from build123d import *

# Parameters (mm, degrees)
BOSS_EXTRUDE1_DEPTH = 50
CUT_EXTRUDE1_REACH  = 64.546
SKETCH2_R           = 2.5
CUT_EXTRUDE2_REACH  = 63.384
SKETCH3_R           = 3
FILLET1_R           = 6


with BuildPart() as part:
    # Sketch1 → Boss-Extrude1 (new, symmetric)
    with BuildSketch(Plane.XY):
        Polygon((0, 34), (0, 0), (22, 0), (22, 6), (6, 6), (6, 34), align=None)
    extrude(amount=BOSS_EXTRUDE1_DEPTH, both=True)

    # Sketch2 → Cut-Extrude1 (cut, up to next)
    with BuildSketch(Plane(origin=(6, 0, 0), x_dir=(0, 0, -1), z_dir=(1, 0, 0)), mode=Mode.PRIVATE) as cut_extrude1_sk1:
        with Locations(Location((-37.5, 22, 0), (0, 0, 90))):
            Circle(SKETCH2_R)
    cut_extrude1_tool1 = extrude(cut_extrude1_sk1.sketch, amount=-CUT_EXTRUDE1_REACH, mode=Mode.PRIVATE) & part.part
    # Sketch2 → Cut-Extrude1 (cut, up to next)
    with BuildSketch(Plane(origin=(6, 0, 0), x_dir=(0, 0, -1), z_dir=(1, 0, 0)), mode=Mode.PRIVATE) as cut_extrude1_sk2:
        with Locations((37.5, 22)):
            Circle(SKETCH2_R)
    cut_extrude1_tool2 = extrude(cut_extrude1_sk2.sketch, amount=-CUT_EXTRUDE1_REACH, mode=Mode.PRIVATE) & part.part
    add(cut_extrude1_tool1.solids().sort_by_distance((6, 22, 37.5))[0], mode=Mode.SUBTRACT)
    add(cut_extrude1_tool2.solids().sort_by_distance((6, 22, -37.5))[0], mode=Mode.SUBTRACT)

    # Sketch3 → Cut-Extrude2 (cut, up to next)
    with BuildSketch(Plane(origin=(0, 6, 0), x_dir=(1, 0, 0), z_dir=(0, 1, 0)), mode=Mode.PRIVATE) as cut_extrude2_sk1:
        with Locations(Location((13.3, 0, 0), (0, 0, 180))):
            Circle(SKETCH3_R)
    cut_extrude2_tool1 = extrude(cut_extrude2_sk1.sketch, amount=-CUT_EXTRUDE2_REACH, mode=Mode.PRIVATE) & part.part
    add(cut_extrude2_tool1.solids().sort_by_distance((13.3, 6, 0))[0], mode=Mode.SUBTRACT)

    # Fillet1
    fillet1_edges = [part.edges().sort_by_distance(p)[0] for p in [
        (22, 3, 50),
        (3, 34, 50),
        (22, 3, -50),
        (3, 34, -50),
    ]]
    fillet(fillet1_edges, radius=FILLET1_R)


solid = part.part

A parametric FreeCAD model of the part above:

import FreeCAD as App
import Part
import Sketcher
from FreeCAD import Vector


def edges_at(feature, points):
    """Names of the edges that pass closest to the given points."""
    edges = feature.Shape.Edges
    near = lambda p: min(range(len(edges)), key=lambda i: edges[i].distToShape(Part.Vertex(*p))[0])
    return sorted({f"Edge{near(p) + 1}" for p in points})

doc = App.newDocument("Part")
body = doc.addObject("PartDesign::Body", "Body")

# Sketch on XY plane
sketch1 = body.newObject("Sketcher::SketchObject", "Sketch")
sketch1.AttachmentSupport = (doc.getObject("XY_Plane"), [""])
sketch1.MapMode = "FlatFace"
sketch1.addGeometry([
    Part.LineSegment(Vector(0, 34, 0), Vector(0, 0, 0)),  # 0
    Part.LineSegment(Vector(0, 0, 0), Vector(22, 0, 0)),  # 1
    Part.LineSegment(Vector(22, 0, 0), Vector(22, 6, 0)),  # 2
    Part.LineSegment(Vector(22, 6, 0), Vector(6, 6, 0)),  # 3
    Part.LineSegment(Vector(6, 6, 0), Vector(6, 34, 0)),  # 4
    Part.LineSegment(Vector(6, 34, 0), Vector(0, 34, 0)),  # 5
], False)
sketch1.addConstraint([
    Sketcher.Constraint("Coincident", 0, 2, 1, 1),
    Sketcher.Constraint("Coincident", 1, 2, 2, 1),
    Sketcher.Constraint("Coincident", 2, 2, 3, 1),
    Sketcher.Constraint("Coincident", 3, 2, 4, 1),
    Sketcher.Constraint("Coincident", 4, 2, 5, 1),
    Sketcher.Constraint("Coincident", 5, 2, 0, 1),
    Sketcher.Constraint("Vertical", 0),
    Sketcher.Constraint("Horizontal", 1),
    Sketcher.Constraint("Vertical", 2),
    Sketcher.Constraint("Horizontal", 3),
    Sketcher.Constraint("Vertical", 4),
    Sketcher.Constraint("Horizontal", 5),
    Sketcher.Constraint("Coincident", 0, 2, -1, 1),
    Sketcher.Constraint("Equal", 5, 2),
    Sketcher.Constraint("DistanceX", 1, 1, 1, 2, 22.0),
    Sketcher.Constraint("DistanceX", 3, 2, 3, 1, 16.0),
    Sketcher.Constraint("DistanceY", 0, 2, 0, 1, 34.0),
])
pad1 = body.newObject("PartDesign::Pad", "Pad")
pad1.Profile = sketch1
pad1.Length = 100
pad1.Midplane = True

# Sketch on YZ plane
sketch2 = body.newObject("Sketcher::SketchObject", "Sketch001")
sketch2.AttachmentSupport = (doc.getObject("YZ_Plane"), [""])
sketch2.MapMode = "FlatFace"
sketch2.AttachmentOffset = App.Placement(Vector(0, 0, 6), App.Rotation())
sketch2.addGeometry(Part.Circle(Vector(22, 37.5, 0), Vector(0, 0, 1), 2.5), False)
sketch2.addConstraint([
    Sketcher.Constraint("Diameter", 0, 5.0),
    Sketcher.Constraint("DistanceX", -1, 1, 0, 3, 22.0),
    Sketcher.Constraint("DistanceY", -1, 1, 0, 3, 37.5),
])
pocket1 = body.newObject("PartDesign::Pocket", "Pocket")
pocket1.Profile = sketch2
pocket1.Type = "UpToFirst"

# Sketch on YZ plane
sketch3 = body.newObject("Sketcher::SketchObject", "Sketch002")
sketch3.AttachmentSupport = (doc.getObject("YZ_Plane"), [""])
sketch3.MapMode = "FlatFace"
sketch3.AttachmentOffset = App.Placement(Vector(0, 0, 6), App.Rotation())
sketch3.addGeometry(Part.Circle(Vector(22, -37.5, 0), Vector(0, 0, 1), 2.5), False)
sketch3.addConstraint([
    Sketcher.Constraint("Diameter", 0, 5.0),
    Sketcher.Constraint("DistanceX", -1, 1, 0, 3, 22.0),
    Sketcher.Constraint("DistanceY", 0, 3, -1, 1, 37.5),
])
pocket2 = body.newObject("PartDesign::Pocket", "Pocket001")
pocket2.Profile = sketch3
pocket2.Type = "UpToFirst"

# Sketch on XZ plane
sketch4 = body.newObject("Sketcher::SketchObject", "Sketch003")
sketch4.AttachmentSupport = (doc.getObject("XZ_Plane"), [""])
sketch4.MapMode = "FlatFace"
sketch4.AttachmentOffset = App.Placement(Vector(0, 0, -6), App.Rotation())
sketch4.addGeometry(Part.Circle(Vector(13.3, 0, 0), Vector(0, 0, 1), 3), False)
sketch4.addConstraint([
    Sketcher.Constraint("PointOnObject", 0, 3, -1),
    Sketcher.Constraint("Diameter", 0, 6.0),
    Sketcher.Constraint("DistanceX", -1, 1, 0, 3, 13.3),
])
pocket3 = body.newObject("PartDesign::Pocket", "Pocket002")
pocket3.Profile = sketch4
pocket3.Type = "UpToFirst"
pocket3.Reversed = True
doc.recompute()

fillet = body.newObject("PartDesign::Fillet", "Fillet")
fillet.Base = (pocket3, edges_at(pocket3, [
    (22, 3, 50),
    (3, 34, 50),
    (22, 3, -50),
    (3, 34, -50),
]))
fillet.Radius = 6

doc.recompute()
